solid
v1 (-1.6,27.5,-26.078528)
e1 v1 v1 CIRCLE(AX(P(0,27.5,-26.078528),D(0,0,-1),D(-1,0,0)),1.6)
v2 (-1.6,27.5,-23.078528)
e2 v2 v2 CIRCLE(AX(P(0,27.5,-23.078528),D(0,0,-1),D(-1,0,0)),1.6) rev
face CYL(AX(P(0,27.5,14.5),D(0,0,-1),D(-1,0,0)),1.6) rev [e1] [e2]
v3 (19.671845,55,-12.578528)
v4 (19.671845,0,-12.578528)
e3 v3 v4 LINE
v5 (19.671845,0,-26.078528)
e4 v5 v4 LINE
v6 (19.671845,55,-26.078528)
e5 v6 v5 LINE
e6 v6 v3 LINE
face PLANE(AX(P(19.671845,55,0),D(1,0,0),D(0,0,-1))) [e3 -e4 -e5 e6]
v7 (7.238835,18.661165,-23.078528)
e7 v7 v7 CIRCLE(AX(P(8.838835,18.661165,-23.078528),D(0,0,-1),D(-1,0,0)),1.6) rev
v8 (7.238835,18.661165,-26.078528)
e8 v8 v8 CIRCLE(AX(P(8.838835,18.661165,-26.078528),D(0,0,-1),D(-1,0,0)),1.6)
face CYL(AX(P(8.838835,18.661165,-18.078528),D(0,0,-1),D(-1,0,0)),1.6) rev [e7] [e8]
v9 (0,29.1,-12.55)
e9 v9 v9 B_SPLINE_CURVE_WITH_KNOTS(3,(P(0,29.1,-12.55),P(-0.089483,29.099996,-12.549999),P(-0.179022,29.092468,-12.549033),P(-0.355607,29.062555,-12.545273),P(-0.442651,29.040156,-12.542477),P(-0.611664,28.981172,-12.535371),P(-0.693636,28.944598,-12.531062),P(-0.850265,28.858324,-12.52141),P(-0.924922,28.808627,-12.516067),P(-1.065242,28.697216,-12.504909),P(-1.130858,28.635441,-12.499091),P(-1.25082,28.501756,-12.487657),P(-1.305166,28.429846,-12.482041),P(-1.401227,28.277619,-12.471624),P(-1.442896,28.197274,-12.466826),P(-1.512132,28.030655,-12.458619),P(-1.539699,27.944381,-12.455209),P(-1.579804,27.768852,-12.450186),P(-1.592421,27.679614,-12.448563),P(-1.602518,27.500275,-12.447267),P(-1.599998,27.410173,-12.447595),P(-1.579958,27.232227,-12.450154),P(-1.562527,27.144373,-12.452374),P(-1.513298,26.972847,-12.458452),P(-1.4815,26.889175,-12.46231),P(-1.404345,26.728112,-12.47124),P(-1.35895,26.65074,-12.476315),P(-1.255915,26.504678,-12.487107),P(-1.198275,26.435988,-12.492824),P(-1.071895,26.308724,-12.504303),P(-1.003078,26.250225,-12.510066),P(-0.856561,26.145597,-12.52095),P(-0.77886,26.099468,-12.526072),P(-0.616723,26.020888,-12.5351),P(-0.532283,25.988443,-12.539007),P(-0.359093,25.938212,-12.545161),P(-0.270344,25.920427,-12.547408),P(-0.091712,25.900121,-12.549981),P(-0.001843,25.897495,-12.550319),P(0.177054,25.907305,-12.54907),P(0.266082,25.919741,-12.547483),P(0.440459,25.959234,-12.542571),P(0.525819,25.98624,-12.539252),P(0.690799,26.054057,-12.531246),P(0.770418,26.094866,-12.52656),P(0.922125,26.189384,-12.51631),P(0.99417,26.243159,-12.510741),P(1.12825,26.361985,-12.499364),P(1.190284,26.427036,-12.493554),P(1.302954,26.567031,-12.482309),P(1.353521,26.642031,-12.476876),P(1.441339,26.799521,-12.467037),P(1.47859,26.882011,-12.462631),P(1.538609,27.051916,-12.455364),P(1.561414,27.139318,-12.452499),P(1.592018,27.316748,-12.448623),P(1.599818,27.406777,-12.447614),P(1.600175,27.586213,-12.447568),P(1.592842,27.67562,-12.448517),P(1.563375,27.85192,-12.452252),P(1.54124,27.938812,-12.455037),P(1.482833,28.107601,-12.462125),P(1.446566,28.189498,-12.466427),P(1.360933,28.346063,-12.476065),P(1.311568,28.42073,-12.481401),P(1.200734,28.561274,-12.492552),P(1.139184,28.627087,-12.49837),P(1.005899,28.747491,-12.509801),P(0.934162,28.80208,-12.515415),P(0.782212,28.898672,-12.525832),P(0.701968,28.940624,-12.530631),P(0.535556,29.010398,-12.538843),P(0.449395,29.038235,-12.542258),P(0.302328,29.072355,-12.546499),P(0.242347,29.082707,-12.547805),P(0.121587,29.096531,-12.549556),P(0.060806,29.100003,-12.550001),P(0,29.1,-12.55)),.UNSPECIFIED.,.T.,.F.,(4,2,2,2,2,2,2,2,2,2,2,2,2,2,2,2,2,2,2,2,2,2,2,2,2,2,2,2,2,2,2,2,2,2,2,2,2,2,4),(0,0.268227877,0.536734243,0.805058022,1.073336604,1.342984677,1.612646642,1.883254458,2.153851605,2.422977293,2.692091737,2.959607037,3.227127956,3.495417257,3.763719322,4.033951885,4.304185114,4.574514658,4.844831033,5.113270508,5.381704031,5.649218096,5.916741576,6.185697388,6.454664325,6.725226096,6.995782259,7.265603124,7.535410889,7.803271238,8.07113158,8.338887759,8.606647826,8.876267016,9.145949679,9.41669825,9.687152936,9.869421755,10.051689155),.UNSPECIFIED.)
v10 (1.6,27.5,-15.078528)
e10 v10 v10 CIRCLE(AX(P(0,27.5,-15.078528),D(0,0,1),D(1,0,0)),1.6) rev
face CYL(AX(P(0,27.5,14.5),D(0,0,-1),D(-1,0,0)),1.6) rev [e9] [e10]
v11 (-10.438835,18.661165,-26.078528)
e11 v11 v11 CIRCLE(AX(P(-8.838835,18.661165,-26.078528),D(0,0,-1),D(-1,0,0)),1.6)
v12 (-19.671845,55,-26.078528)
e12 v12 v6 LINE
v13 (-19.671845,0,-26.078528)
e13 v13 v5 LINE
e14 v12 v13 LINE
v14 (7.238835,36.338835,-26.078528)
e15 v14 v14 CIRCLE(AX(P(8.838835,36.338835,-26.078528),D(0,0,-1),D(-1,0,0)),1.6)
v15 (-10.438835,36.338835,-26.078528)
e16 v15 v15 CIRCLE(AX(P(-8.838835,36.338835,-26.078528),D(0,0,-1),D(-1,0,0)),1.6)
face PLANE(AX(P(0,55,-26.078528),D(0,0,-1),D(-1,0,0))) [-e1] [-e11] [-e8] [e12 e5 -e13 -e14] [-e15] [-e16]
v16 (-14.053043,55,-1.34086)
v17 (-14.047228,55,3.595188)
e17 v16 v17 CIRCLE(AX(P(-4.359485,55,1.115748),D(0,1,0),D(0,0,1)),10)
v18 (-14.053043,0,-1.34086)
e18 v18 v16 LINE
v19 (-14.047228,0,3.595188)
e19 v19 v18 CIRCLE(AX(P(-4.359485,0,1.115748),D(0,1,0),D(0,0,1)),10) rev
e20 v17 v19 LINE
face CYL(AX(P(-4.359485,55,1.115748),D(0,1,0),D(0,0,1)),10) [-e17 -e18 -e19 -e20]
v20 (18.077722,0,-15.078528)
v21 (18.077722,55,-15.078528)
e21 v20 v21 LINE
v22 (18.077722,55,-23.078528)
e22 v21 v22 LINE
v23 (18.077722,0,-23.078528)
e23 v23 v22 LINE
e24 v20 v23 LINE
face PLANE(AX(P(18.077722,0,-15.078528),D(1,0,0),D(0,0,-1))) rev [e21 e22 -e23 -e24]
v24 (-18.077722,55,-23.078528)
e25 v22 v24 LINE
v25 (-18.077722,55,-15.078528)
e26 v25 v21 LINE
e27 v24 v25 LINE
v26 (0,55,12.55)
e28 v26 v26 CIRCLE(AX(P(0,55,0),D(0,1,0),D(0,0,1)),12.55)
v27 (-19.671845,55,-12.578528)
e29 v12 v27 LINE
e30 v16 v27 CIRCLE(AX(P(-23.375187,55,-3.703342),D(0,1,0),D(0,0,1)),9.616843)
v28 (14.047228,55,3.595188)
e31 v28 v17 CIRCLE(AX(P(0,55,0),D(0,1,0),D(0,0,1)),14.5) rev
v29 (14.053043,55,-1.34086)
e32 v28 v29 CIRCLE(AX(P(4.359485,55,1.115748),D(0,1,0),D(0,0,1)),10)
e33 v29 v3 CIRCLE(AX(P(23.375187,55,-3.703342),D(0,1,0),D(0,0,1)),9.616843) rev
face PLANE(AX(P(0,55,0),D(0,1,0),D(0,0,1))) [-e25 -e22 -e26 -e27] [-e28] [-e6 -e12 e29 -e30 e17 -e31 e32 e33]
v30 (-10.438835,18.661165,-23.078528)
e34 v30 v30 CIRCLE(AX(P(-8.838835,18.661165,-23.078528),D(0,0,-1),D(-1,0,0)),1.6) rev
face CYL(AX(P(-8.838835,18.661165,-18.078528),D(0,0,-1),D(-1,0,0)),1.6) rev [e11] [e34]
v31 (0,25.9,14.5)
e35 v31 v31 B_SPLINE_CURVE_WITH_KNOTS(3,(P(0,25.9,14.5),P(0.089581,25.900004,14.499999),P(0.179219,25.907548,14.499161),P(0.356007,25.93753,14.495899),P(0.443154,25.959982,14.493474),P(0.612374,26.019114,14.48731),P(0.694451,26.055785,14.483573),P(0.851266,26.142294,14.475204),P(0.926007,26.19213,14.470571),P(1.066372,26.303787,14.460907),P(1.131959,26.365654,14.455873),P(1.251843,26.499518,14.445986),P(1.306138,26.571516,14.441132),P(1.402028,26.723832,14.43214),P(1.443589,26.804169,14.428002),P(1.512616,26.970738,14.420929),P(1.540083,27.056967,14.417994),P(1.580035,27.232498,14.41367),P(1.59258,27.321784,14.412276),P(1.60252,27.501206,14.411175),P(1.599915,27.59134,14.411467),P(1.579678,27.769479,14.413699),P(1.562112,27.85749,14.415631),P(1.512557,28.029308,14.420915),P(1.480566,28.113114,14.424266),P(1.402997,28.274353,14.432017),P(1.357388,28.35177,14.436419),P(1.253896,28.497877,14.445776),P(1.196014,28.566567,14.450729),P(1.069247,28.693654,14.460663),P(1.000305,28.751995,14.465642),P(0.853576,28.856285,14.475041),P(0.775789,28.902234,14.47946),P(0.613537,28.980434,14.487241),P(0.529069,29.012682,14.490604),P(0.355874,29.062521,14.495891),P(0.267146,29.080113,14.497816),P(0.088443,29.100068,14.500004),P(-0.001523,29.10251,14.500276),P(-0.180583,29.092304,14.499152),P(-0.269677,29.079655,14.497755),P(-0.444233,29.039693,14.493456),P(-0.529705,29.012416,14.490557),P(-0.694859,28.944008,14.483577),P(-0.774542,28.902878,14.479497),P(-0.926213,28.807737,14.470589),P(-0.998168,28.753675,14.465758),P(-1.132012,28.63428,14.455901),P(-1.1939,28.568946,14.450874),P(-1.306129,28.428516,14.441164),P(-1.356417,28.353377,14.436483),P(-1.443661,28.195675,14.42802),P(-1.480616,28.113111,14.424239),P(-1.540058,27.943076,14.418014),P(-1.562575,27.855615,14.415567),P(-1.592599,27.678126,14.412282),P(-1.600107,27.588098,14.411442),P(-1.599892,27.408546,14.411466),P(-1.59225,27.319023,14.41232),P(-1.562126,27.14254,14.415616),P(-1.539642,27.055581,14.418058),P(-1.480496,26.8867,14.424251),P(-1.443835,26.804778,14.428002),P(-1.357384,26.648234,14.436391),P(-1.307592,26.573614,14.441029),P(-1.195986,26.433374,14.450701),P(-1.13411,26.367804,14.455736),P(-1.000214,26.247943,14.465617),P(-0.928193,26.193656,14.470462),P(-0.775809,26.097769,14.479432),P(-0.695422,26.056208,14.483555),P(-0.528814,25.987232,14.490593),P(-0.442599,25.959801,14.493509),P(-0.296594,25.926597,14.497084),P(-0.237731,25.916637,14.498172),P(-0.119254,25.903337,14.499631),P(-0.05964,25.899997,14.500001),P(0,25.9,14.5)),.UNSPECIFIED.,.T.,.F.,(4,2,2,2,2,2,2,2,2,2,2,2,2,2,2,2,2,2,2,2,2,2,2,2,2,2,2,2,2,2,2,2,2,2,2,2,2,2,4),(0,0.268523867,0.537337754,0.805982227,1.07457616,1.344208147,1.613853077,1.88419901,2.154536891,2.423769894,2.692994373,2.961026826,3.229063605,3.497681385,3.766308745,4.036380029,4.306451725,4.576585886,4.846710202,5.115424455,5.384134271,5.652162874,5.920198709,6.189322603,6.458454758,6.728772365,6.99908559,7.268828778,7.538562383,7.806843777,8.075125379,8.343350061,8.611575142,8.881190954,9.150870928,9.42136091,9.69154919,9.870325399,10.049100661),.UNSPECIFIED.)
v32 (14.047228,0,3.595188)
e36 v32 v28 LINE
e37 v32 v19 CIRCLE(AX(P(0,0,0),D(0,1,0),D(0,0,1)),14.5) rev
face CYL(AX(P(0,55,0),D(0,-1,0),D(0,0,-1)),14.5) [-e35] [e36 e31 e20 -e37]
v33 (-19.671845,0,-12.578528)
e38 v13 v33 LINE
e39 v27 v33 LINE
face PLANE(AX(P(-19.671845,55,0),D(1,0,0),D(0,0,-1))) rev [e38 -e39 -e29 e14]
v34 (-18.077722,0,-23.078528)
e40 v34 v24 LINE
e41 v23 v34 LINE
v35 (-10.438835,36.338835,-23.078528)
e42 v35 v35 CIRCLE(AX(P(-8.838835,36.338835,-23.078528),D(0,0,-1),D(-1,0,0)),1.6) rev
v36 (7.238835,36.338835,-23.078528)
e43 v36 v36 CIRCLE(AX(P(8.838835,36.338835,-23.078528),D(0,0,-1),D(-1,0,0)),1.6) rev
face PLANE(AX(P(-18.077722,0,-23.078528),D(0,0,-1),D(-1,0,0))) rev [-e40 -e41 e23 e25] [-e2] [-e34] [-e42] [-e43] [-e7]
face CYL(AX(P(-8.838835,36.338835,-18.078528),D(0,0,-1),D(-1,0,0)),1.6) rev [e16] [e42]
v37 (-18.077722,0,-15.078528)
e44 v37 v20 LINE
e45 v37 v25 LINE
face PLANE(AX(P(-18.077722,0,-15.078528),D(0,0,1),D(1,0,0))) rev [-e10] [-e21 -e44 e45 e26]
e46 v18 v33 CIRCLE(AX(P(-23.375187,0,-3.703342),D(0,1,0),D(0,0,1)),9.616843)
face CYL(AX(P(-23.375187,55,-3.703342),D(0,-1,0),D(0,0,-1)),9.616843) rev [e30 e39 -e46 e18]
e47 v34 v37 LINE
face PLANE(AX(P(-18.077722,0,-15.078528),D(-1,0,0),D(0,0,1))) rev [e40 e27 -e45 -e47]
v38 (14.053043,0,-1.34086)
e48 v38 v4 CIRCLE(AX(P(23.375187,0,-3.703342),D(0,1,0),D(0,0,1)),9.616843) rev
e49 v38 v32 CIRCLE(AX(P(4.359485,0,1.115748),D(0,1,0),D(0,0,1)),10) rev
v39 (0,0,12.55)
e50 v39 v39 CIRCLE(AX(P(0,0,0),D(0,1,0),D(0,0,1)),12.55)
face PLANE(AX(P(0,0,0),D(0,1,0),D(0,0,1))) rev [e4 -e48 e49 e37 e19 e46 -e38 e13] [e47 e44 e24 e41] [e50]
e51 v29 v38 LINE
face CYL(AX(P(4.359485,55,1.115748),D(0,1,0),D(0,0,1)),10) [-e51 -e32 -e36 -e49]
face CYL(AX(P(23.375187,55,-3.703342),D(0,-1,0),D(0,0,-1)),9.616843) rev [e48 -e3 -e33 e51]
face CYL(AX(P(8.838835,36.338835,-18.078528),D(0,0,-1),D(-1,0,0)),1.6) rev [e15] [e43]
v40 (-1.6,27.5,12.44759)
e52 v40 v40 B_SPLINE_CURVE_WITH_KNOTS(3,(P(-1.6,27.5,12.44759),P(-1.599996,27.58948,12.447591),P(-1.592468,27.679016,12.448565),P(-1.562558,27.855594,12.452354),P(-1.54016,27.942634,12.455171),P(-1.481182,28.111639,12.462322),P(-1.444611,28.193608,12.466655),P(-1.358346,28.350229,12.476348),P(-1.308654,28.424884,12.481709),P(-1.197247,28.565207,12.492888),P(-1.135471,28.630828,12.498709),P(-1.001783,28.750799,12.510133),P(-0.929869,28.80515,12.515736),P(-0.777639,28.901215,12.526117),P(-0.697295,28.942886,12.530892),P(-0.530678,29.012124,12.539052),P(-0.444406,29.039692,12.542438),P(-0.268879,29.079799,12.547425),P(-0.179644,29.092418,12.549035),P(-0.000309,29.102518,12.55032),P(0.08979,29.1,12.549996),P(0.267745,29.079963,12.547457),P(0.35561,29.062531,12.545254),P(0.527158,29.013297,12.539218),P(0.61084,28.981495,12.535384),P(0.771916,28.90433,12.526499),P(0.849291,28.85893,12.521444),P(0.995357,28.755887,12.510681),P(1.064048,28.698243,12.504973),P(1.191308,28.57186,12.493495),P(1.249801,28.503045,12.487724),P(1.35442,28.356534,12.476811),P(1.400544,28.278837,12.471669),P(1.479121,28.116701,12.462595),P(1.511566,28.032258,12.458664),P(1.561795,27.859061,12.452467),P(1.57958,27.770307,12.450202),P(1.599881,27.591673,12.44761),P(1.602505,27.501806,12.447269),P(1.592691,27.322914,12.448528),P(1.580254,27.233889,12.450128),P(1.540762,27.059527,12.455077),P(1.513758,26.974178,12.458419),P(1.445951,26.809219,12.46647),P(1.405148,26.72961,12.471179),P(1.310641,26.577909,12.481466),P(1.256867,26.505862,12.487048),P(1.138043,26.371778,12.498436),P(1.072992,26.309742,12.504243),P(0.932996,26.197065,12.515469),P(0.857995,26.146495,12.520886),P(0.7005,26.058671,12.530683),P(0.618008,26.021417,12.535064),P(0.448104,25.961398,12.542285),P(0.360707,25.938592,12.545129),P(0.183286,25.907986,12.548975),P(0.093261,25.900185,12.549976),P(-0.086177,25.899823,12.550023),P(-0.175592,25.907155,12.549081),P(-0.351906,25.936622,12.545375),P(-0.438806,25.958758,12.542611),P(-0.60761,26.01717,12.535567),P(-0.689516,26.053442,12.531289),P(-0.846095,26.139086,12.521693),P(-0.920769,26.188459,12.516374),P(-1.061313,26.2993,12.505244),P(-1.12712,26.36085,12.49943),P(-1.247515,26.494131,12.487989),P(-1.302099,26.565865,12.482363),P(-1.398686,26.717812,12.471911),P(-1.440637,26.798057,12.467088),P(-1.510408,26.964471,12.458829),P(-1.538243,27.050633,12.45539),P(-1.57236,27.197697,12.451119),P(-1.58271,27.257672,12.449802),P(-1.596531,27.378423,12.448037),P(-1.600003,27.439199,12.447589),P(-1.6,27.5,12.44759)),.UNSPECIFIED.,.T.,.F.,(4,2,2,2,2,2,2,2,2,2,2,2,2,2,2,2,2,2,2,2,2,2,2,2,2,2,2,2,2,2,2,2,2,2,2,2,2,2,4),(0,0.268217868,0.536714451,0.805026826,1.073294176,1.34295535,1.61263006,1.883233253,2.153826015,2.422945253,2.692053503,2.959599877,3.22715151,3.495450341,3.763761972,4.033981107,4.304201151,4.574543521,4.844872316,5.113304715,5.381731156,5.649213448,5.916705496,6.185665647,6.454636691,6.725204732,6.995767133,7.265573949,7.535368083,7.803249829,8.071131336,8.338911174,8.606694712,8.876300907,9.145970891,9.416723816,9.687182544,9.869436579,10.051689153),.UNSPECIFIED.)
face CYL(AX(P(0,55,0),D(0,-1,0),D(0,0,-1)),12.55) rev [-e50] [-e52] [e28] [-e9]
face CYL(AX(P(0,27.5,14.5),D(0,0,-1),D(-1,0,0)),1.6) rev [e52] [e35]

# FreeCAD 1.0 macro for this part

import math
import FreeCAD as App
import Part
import Sketcher
from FreeCAD import Vector


def edges_at(feature, points):
    """Names of the edges that pass closest to the given points."""
    edges = feature.Shape.Edges
    near = lambda p: min(range(len(edges)), key=lambda i: edges[i].distToShape(Part.Vertex(*p))[0])
    return sorted({f"Edge{near(p) + 1}" for p in points})


def add_polygon(sketch, points):
    """Adds a closed chain of lines whose ends are joined by coincident constraints."""
    first, n = sketch.GeometryCount, len(points)
    for a, b in zip(points, points[1:] + points[:1]):
        sketch.addGeometry(Part.LineSegment(App.Vector(*a, 0), App.Vector(*b, 0)), False)
    for i in range(n):
        sketch.addConstraint(Sketcher.Constraint("Coincident", first + i, 2, first + (i + 1) % n, 1))

doc = App.newDocument("Part")
params = doc.addObject("Spreadsheet::Sheet", "Params")
for row, (alias, value) in enumerate([
    ("sketch1_radius", "14.5 mm"),
    ("sketch1_height", "13.5 mm"),
    ("pad1_length", "55 mm"),
    ("sketch2_diameter", "25.1 mm"),
    ("sketch3_diameter", "3.2 mm"),
    ("sketch4_diameter", "3.2 mm"),
    ("pocket3_length", "8 mm"),
    ("sketch5_height", "8 mm"),
    ("fillet_radius", "10 mm"),
], start=1):
    params.set(f"A{row}", alias)
    params.set(f"B{row}", "=" + value)
    params.setAlias(f"B{row}", alias)

body = doc.addObject("PartDesign::Body", "Body")

# Sketch on XZ plane
sketch1 = doc.addObject("Sketcher::SketchObject", "Sketch")
body.addObject(sketch1)
sketch1.AttachmentSupport = (doc.XZ_Plane, [""])
sketch1.MapMode = "FlatFace"
sketch1.addGeometry([
    Part.LineSegment(Vector(19.671845, -26.078528, 0), Vector(-19.671845, -26.078528, 0)),  # 0
    Part.LineSegment(Vector(-19.671845, -26.078528, 0), Vector(-19.671845, -12.578528, 0)),  # 1
    Part.ArcOfCircle(Part.Circle(Vector(-23.375187, -3.703342, 0), Vector(0, 0, 1), 9.616843), math.radians(-67.350728), math.radians(22.649272)),  # 2
    Part.ArcOfCircle(Part.Circle(Vector(0, 0, 0), Vector(0, 0, 1), 14.5), math.radians(0), math.radians(180)),  # 3
    Part.ArcOfCircle(Part.Circle(Vector(23.375187, -3.703342, 0), Vector(0, 0, 1), 9.616843), math.radians(157.350728), math.radians(247.350728)),  # 4
    Part.LineSegment(Vector(19.671845, -12.578528, 0), Vector(19.671845, -26.078528, 0)),  # 5
], False)
sketch1.addConstraint([
    Sketcher.Constraint("Coincident", 0, 2, 1, 1),
    Sketcher.Constraint("Coincident", 1, 2, 2, 1),
    Sketcher.Constraint("Coincident", 2, 2, 3, 2),
    Sketcher.Constraint("Coincident", 3, 1, 4, 1),
    Sketcher.Constraint("Coincident", 4, 2, 5, 1),
    Sketcher.Constraint("Coincident", 5, 2, 0, 1),
    Sketcher.Constraint("Horizontal", 0),
    Sketcher.Constraint("Vertical", 1),
    Sketcher.Constraint("Vertical", 5),
    Sketcher.Constraint("Coincident", 3, 3, -1, 1),
    Sketcher.Constraint("Equal", 2, 4),
    Sketcher.Constraint("Symmetric", 2, 3, 4, 3, -2),
    Sketcher.Constraint("PointOnObject", 2, 2, -1),
    Sketcher.Constraint("Horizontal", 1, 2, 4, 2),
    Sketcher.Constraint("Radius", 3, 14.5),
    Sketcher.Constraint("DistanceY", 1, 1, 1, 2, 13.5),
    Sketcher.Constraint("Radius", 2, 9.616843),
    Sketcher.Constraint("DistanceX", 0, 2, 0, 1, 39.34369),
    Sketcher.Constraint("DistanceY", 2, 3, -1, 1, 3.703342),
])
sketch1.setExpression("Constraints[14]", "Params.sketch1_radius")
sketch1.setExpression("Constraints[15]", "Params.sketch1_height")
pad1 = doc.addObject("PartDesign::Pad", "Pad")
body.addObject(pad1)
pad1.Profile = sketch1
pad1.setExpression("Length", "Params.pad1_length")
pad1.Reversed = True

# Sketch on XZ plane
sketch2 = doc.addObject("Sketcher::SketchObject", "Sketch001")
body.addObject(sketch2)
sketch2.AttachmentSupport = (doc.XZ_Plane, [""])
sketch2.MapMode = "FlatFace"
sketch2.addGeometry(Part.Circle(Vector(0, 0, 0), Vector(0, 0, 1), 12.55), False)
sketch2.addConstraint([
    Sketcher.Constraint("Coincident", 0, 3, -1, 1),
    Sketcher.Constraint("Diameter", 0, 25.1),
])
sketch2.setExpression("Constraints[1]", "Params.sketch2_diameter")
pocket1 = doc.addObject("PartDesign::Pocket", "Pocket")
body.addObject(pocket1)
pocket1.Profile = sketch2
pocket1.Type = "ThroughAll"

# Sketch on XY plane
sketch3 = doc.addObject("Sketcher::SketchObject", "Sketch002")
body.addObject(sketch3)
sketch3.AttachmentSupport = (doc.XY_Plane, [""])
sketch3.MapMode = "FlatFace"
sketch3.AttachmentOffset = App.Placement(Vector(0, 0, -26.078528), App.Rotation())
sketch3.addGeometry(Part.Circle(Vector(0, 27.5, 0), Vector(0, 0, 1), 1.6), False)
sketch3.addConstraint([
    Sketcher.Constraint("PointOnObject", 0, 3, -2),
    Sketcher.Constraint("Diameter", 0, 3.2),
    Sketcher.Constraint("DistanceY", -1, 1, 0, 3, 27.5),
])
sketch3.setExpression("Constraints[1]", "Params.sketch3_diameter")
pocket2 = doc.addObject("PartDesign::Pocket", "Pocket001")
body.addObject(pocket2)
pocket2.Profile = sketch3
pocket2.Type = "ThroughAll"
pocket2.Reversed = True

# Sketch on XY plane
sketch4 = doc.addObject("Sketcher::SketchObject", "Sketch003")
body.addObject(sketch4)
sketch4.AttachmentSupport = (doc.XY_Plane, [""])
sketch4.MapMode = "FlatFace"
sketch4.AttachmentOffset = App.Placement(Vector(0, 0, -26.078528), App.Rotation())
sketch4.addGeometry([
    Part.Circle(Vector(-8.838835, 18.661165, 0), Vector(0, 0, 1), 1.6),
    Part.Circle(Vector(-8.838835, 36.338835, 0), Vector(0, 0, 1), 1.6),
    Part.Circle(Vector(8.838835, 36.338835, 0), Vector(0, 0, 1), 1.6),
    Part.Circle(Vector(8.838835, 18.661165, 0), Vector(0, 0, 1), 1.6),
], False)
sketch4.addConstraint([
    Sketcher.Constraint("Equal", 0, 1),
    Sketcher.Constraint("Equal", 1, 2),
    Sketcher.Constraint("Equal", 2, 3),
    Sketcher.Constraint("Symmetric", 1, 3, 2, 3, -2),
    Sketcher.Constraint("Symmetric", 0, 3, 3, 3, -2),
    Sketcher.Constraint("Vertical", 0, 3, 1, 3),
    Sketcher.Constraint("Diameter", 0, 3.2),
    Sketcher.Constraint("DistanceY", 0, 3, 1, 3, 17.67767),
    Sketcher.Constraint("DistanceX", 1, 3, 2, 3, 17.67767),
    Sketcher.Constraint("DistanceY", -1, 1, 0, 3, 18.661165),
])
sketch4.setExpression("Constraints[6]", "Params.sketch4_diameter")
pocket3 = doc.addObject("PartDesign::Pocket", "Pocket002")
body.addObject(pocket3)
pocket3.Profile = sketch4
pocket3.setExpression("Length", "Params.pocket3_length")
pocket3.Reversed = True

# Sketch on XZ plane
sketch5 = doc.addObject("Sketcher::SketchObject", "Sketch004")
body.addObject(sketch5)
sketch5.AttachmentSupport = (doc.XZ_Plane, [""])
sketch5.MapMode = "FlatFace"
sketch5.AttachmentOffset = App.Placement(Vector(0, 0, -55), App.Rotation())
add_polygon(sketch5, [(-18.077722, -23.078528), (-18.077722, -15.078528), (18.077722, -15.078528), (18.077722, -23.078528)])  # lines 0-3
sketch5.addConstraint([
    Sketcher.Constraint("Vertical", 0),
    Sketcher.Constraint("Horizontal", 1),
    Sketcher.Constraint("Vertical", 2),
    Sketcher.Constraint("Horizontal", 3),
    Sketcher.Constraint("DistanceY", 0, 1, 0, 2, 8.0),
    Sketcher.Constraint("DistanceX", 1, 1, 1, 2, 36.155444),
    Sketcher.Constraint("DistanceX", 0, 2, -1, 1, 18.077722),
    Sketcher.Constraint("DistanceY", 0, 2, -1, 1, 15.078528),
])
sketch5.setExpression("Constraints[8]", "Params.sketch5_height")
pocket4 = doc.addObject("PartDesign::Pocket", "Pocket003")
body.addObject(pocket4)
pocket4.Profile = sketch5
pocket4.Type = "ThroughAll"
pocket4.Reversed = True
doc.recompute()

fillet = doc.addObject("PartDesign::Fillet", "Fillet")
body.addObject(fillet)
fillet.Base = (pocket4, edges_at(pocket4, [(14.5, 27.5, 0), (-14.5, 27.5, 0)]))
fillet.setExpression("Radius", "Params.fillet_radius")

doc.recompute()
